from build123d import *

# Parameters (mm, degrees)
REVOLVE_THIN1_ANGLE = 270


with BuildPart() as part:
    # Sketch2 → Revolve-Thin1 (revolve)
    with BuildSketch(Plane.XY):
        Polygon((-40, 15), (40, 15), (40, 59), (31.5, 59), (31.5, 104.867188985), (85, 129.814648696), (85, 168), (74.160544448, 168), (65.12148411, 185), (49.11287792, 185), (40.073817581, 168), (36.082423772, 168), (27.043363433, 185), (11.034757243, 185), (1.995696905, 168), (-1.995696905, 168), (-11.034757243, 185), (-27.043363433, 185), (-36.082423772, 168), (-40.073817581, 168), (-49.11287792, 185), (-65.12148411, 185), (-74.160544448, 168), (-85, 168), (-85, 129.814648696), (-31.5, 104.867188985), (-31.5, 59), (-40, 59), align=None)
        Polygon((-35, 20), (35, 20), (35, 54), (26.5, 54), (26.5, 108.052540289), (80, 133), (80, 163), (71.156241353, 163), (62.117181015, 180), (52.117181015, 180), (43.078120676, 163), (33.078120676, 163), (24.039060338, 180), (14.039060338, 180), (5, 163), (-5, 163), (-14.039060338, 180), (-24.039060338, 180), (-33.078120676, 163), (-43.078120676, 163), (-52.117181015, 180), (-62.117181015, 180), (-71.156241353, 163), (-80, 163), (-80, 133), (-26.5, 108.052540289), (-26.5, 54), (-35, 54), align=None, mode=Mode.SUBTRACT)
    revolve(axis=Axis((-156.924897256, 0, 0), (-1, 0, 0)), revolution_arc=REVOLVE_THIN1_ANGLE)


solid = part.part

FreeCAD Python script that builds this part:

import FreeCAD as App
import Part
import Sketcher
Q = App.Units.Quantity

doc = App.newDocument("Part")
params = doc.addObject("Spreadsheet::Sheet", "Params")
for row, (alias, value) in enumerate([
    ("sketch1_width", "80 mm"),
    ("sketch1_width2", "70 mm"),
    ("sketch1_width3", "10 mm"),
    ("sketch1_height", "44 mm"),
    ("sketch1_height2", "34 mm"),
    ("revolution_angle", "270 deg"),
], start=1):
    params.set(f"A{row}", alias)
    params.set(f"B{row}", "=" + value)
    params.setAlias(f"B{row}", alias)

body = doc.addObject("PartDesign::Body", "Body")

# Sketch on XY plane
sketch1 = body.newObject("Sketcher::SketchObject", "Sketch")
sketch1.AttachmentSupport = (doc.getObject("XY_Plane"), [""])
sketch1.MapMode = "FlatFace"
sketch1.addGeometry([
    Part.LineSegment(App.Vector(-40, 15, 0), App.Vector(40, 15, 0)),  # 0
    Part.LineSegment(App.Vector(40, 15, 0), App.Vector(40, 59, 0)),  # 1
    Part.LineSegment(App.Vector(40, 59, 0), App.Vector(31.5, 59, 0)),  # 2
    Part.LineSegment(App.Vector(31.5, 59, 0), App.Vector(31.5, 104.9, 0)),  # 3
    Part.LineSegment(App.Vector(31.5, 104.9, 0), App.Vector(85, 129.8, 0)),  # 4
    Part.LineSegment(App.Vector(85, 129.8, 0), App.Vector(85, 168, 0)),  # 5
    Part.LineSegment(App.Vector(85, 168, 0), App.Vector(74.2, 168, 0)),  # 6
    Part.LineSegment(App.Vector(74.2, 168, 0), App.Vector(65.1, 185, 0)),  # 7
    Part.LineSegment(App.Vector(65.1, 185, 0), App.Vector(49.1, 185, 0)),  # 8
    Part.LineSegment(App.Vector(49.1, 185, 0), App.Vector(40.1, 168, 0)),  # 9
    Part.LineSegment(App.Vector(40.1, 168, 0), App.Vector(36.1, 168, 0)),  # 10
    Part.LineSegment(App.Vector(36.1, 168, 0), App.Vector(27, 185, 0)),  # 11
    Part.LineSegment(App.Vector(27, 185, 0), App.Vector(11, 185, 0)),  # 12
    Part.LineSegment(App.Vector(11, 185, 0), App.Vector(2, 168, 0)),  # 13
    Part.LineSegment(App.Vector(2, 168, 0), App.Vector(-2, 168, 0)),  # 14
    Part.LineSegment(App.Vector(-2, 168, 0), App.Vector(-11, 185, 0)),  # 15
    Part.LineSegment(App.Vector(-11, 185, 0), App.Vector(-27, 185, 0)),  # 16
    Part.LineSegment(App.Vector(-27, 185, 0), App.Vector(-36.1, 168, 0)),  # 17
    Part.LineSegment(App.Vector(-36.1, 168, 0), App.Vector(-40.1, 168, 0)),  # 18
    Part.LineSegment(App.Vector(-40.1, 168, 0), App.Vector(-49.1, 185, 0)),  # 19
    Part.LineSegment(App.Vector(-49.1, 185, 0), App.Vector(-65.1, 185, 0)),  # 20
    Part.LineSegment(App.Vector(-65.1, 185, 0), App.Vector(-74.2, 168, 0)),  # 21
    Part.LineSegment(App.Vector(-74.2, 168, 0), App.Vector(-85, 168, 0)),  # 22
    Part.LineSegment(App.Vector(-85, 168, 0), App.Vector(-85, 129.8, 0)),  # 23
    Part.LineSegment(App.Vector(-85, 129.8, 0), App.Vector(-31.5, 104.9, 0)),  # 24
    Part.LineSegment(App.Vector(-31.5, 104.9, 0), App.Vector(-31.5, 59, 0)),  # 25
    Part.LineSegment(App.Vector(-31.5, 59, 0), App.Vector(-40, 59, 0)),  # 26
    Part.LineSegment(App.Vector(-40, 59, 0), App.Vector(-40, 15, 0)),  # 27
    Part.LineSegment(App.Vector(35, 20, 0), App.Vector(-35, 20, 0)),  # 28
    Part.LineSegment(App.Vector(-35, 20, 0), App.Vector(-35, 54, 0)),  # 29
    Part.LineSegment(App.Vector(-35, 54, 0), App.Vector(-26.5, 54, 0)),  # 30
    Part.LineSegment(App.Vector(-26.5, 54, 0), App.Vector(-26.5, 108.1, 0)),  # 31
    Part.LineSegment(App.Vector(-26.5, 108.1, 0), App.Vector(-80, 133, 0)),  # 32
    Part.LineSegment(App.Vector(-80, 133, 0), App.Vector(-80, 163, 0)),  # 33
    Part.LineSegment(App.Vector(-80, 163, 0), App.Vector(-71.2, 163, 0)),  # 34
    Part.LineSegment(App.Vector(-71.2, 163, 0), App.Vector(-62.1, 180, 0)),  # 35
    Part.LineSegment(App.Vector(-62.1, 180, 0), App.Vector(-52.1, 180, 0)),  # 36
    Part.LineSegment(App.Vector(-52.1, 180, 0), App.Vector(-43.1, 163, 0)),  # 37
    Part.LineSegment(App.Vector(-43.1, 163, 0), App.Vector(-33.1, 163, 0)),  # 38
    Part.LineSegment(App.Vector(-33.1, 163, 0), App.Vector(-24, 180, 0)),  # 39
    Part.LineSegment(App.Vector(-24, 180, 0), App.Vector(-14, 180, 0)),  # 40
    Part.LineSegment(App.Vector(-14, 180, 0), App.Vector(-5, 163, 0)),  # 41
    Part.LineSegment(App.Vector(-5, 163, 0), App.Vector(5, 163, 0)),  # 42
    Part.LineSegment(App.Vector(5, 163, 0), App.Vector(14, 180, 0)),  # 43
    Part.LineSegment(App.Vector(14, 180, 0), App.Vector(24, 180, 0)),  # 44
    Part.LineSegment(App.Vector(24, 180, 0), App.Vector(33.1, 163, 0)),  # 45
    Part.LineSegment(App.Vector(33.1, 163, 0), App.Vector(43.1, 163, 0)),  # 46
    Part.LineSegment(App.Vector(43.1, 163, 0), App.Vector(52.1, 180, 0)),  # 47
    Part.LineSegment(App.Vector(52.1, 180, 0), App.Vector(62.1, 180, 0)),  # 48
    Part.LineSegment(App.Vector(62.1, 180, 0), App.Vector(71.2, 163, 0)),  # 49
    Part.LineSegment(App.Vector(71.2, 163, 0), App.Vector(80, 163, 0)),  # 50
    Part.LineSegment(App.Vector(80, 163, 0), App.Vector(80, 133, 0)),  # 51
    Part.LineSegment(App.Vector(80, 133, 0), App.Vector(26.5, 108.1, 0)),  # 52
    Part.LineSegment(App.Vector(26.5, 108.1, 0), App.Vector(26.5, 54, 0)),  # 53
    Part.LineSegment(App.Vector(26.5, 54, 0), App.Vector(35, 54, 0)),  # 54
    Part.LineSegment(App.Vector(35, 54, 0), App.Vector(35, 20, 0)),  # 55
], False)
sketch1.addConstraint([
    Sketcher.Constraint("Coincident", 0, 2, 1, 1),
    Sketcher.Constraint("Coincident", 1, 2, 2, 1),
    Sketcher.Constraint("Coincident", 2, 2, 3, 1),
    Sketcher.Constraint("Coincident", 3, 2, 4, 1),
    Sketcher.Constraint("Coincident", 4, 2, 5, 1),
    Sketcher.Constraint("Coincident", 5, 2, 6, 1),
    Sketcher.Constraint("Coincident", 6, 2, 7, 1),
    Sketcher.Constraint("Coincident", 7, 2, 8, 1),
    Sketcher.Constraint("Coincident", 8, 2, 9, 1),
    Sketcher.Constraint("Coincident", 9, 2, 10, 1),
    Sketcher.Constraint("Coincident", 10, 2, 11, 1),
    Sketcher.Constraint("Coincident", 11, 2, 12, 1),
    Sketcher.Constraint("Coincident", 12, 2, 13, 1),
    Sketcher.Constraint("Coincident", 13, 2, 14, 1),
    Sketcher.Constraint("Coincident", 14, 2, 15, 1),
    Sketcher.Constraint("Coincident", 15, 2, 16, 1),
    Sketcher.Constraint("Coincident", 16, 2, 17, 1),
    Sketcher.Constraint("Coincident", 17, 2, 18, 1),
    Sketcher.Constraint("Coincident", 18, 2, 19, 1),
    Sketcher.Constraint("Coincident", 19, 2, 20, 1),
    Sketcher.Constraint("Coincident", 20, 2, 21, 1),
    Sketcher.Constraint("Coincident", 21, 2, 22, 1),
    Sketcher.Constraint("Coincident", 22, 2, 23, 1),
    Sketcher.Constraint("Coincident", 23, 2, 24, 1),
    Sketcher.Constraint("Coincident", 24, 2, 25, 1),
    Sketcher.Constraint("Coincident", 25, 2, 26, 1),
    Sketcher.Constraint("Coincident", 26, 2, 27, 1),
    Sketcher.Constraint("Coincident", 27, 2, 0, 1),
    Sketcher.Constraint("Coincident", 28, 2, 29, 1),
    Sketcher.Constraint("Coincident", 29, 2, 30, 1),
    Sketcher.Constraint("Coincident", 30, 2, 31, 1),
    Sketcher.Constraint("Coincident", 31, 2, 32, 1),
    Sketcher.Constraint("Coincident", 32, 2, 33, 1),
    Sketcher.Constraint("Coincident", 33, 2, 34, 1),
    Sketcher.Constraint("Coincident", 34, 2, 35, 1),
    Sketcher.Constraint("Coincident", 35, 2, 36, 1),
    Sketcher.Constraint("Coincident", 36, 2, 37, 1),
    Sketcher.Constraint("Coincident", 37, 2, 38, 1),
    Sketcher.Constraint("Coincident", 38, 2, 39, 1),
    Sketcher.Constraint("Coincident", 39, 2, 40, 1),
    Sketcher.Constraint("Coincident", 40, 2, 41, 1),
    Sketcher.Constraint("Coincident", 41, 2, 42, 1),
    Sketcher.Constraint("Coincident", 42, 2, 43, 1),
    Sketcher.Constraint("Coincident", 43, 2, 44, 1),
    Sketcher.Constraint("Coincident", 44, 2, 45, 1),
    Sketcher.Constraint("Coincident", 45, 2, 46, 1),
    Sketcher.Constraint("Coincident", 46, 2, 47, 1),
    Sketcher.Constraint("Coincident", 47, 2, 48, 1),
    Sketcher.Constraint("Coincident", 48, 2, 49, 1),
    Sketcher.Constraint("Coincident", 49, 2, 50, 1),
    Sketcher.Constraint("Coincident", 50, 2, 51, 1),
    Sketcher.Constraint("Coincident", 51, 2, 52, 1),
    Sketcher.Constraint("Coincident", 52, 2, 53, 1),
    Sketcher.Constraint("Coincident", 53, 2, 54, 1),
    Sketcher.Constraint("Coincident", 54, 2, 55, 1),
    Sketcher.Constraint("Coincident", 55, 2, 28, 1),
    Sketcher.Constraint("Horizontal", 0),
    Sketcher.Constraint("Vertical", 1),
    Sketcher.Constraint("Horizontal", 2),
    Sketcher.Constraint("Vertical", 3),
    Sketcher.Constraint("Vertical", 5),
    Sketcher.Constraint("Horizontal", 6),
    Sketcher.Constraint("Horizontal", 8),
    Sketcher.Constraint("Horizontal", 10),
    Sketcher.Constraint("Horizontal", 12),
    Sketcher.Constraint("Horizontal", 14),
    Sketcher.Constraint("Horizontal", 16),
    Sketcher.Constraint("Horizontal", 18),
    Sketcher.Constraint("Horizontal", 20),
    Sketcher.Constraint("Horizontal", 22),
    Sketcher.Constraint("Vertical", 23),
    Sketcher.Constraint("Vertical", 25),
    Sketcher.Constraint("Horizontal", 26),
    Sketcher.Constraint("Vertical", 27),
    Sketcher.Constraint("Horizontal", 28),
    Sketcher.Constraint("Vertical", 29),
    Sketcher.Constraint("Horizontal", 30),
    Sketcher.Constraint("Vertical", 31),
    Sketcher.Constraint("Vertical", 33),
    Sketcher.Constraint("Horizontal", 34),
    Sketcher.Constraint("Horizontal", 36),
    Sketcher.Constraint("Horizontal", 38),
    Sketcher.Constraint("Horizontal", 40),
    Sketcher.Constraint("Horizontal", 42),
    Sketcher.Constraint("Horizontal", 44),
    Sketcher.Constraint("Horizontal", 46),
    Sketcher.Constraint("Horizontal", 48),
    Sketcher.Constraint("Horizontal", 50),
    Sketcher.Constraint("Vertical", 51),
    Sketcher.Constraint("Vertical", 53),
    Sketcher.Constraint("Horizontal", 54),
    Sketcher.Constraint("Vertical", 55),
    Sketcher.Constraint("Symmetric", 12, 2, 15, 2, -2),
    Sketcher.Constraint("Symmetric", 10, 2, 17, 2, -2),
    Sketcher.Constraint("Symmetric", 8, 2, 19, 2, -2),
    Sketcher.Constraint("Symmetric", 6, 2, 21, 2, -2),
    Sketcher.Constraint("Symmetric", 4, 2, 23, 2, -2),
    Sketcher.Constraint("Symmetric", 3, 2, 24, 2, -2),
    Sketcher.Constraint("Symmetric", 1, 2, 26, 2, -2),
    Sketcher.Constraint("Symmetric", 40, 2, 43, 2, -2),
    Sketcher.Constraint("Symmetric", 38, 2, 45, 2, -2),
    Sketcher.Constraint("Symmetric", 36, 2, 47, 2, -2),
    Sketcher.Constraint("Symmetric", 34, 2, 49, 2, -2),
    Sketcher.Constraint("Symmetric", 32, 2, 51, 2, -2),
    Sketcher.Constraint("Symmetric", 31, 2, 52, 2, -2),
    Sketcher.Constraint("Symmetric", 29, 2, 54, 2, -2),
    Sketcher.Constraint("Parallel", 7, 11),
    Sketcher.Constraint("Parallel", 9, 13),
    Sketcher.Constraint("Parallel", 11, 15),
    Sketcher.Constraint("Parallel", 13, 17),
    Sketcher.Constraint("Parallel", 15, 19),
    Sketcher.Constraint("Parallel", 17, 21),
    Sketcher.Constraint("Parallel", 24, 32),
    Sketcher.Constraint("Parallel", 21, 35),
    Sketcher.Constraint("Parallel", 19, 37),
    Sketcher.Constraint("Parallel", 35, 39),
    Sketcher.Constraint("Parallel", 37, 41),
    Sketcher.Constraint("Parallel", 39, 43),
    Sketcher.Constraint("Parallel", 41, 45),
    Sketcher.Constraint("Parallel", 43, 47),
    Sketcher.Constraint("Parallel", 45, 49),
    Sketcher.Constraint("Horizontal", 6, 2, 9, 2),
    Sketcher.Constraint("Horizontal", 8, 2, 11, 2),
    Sketcher.Constraint("Horizontal", 10, 2, 13, 2),
    Sketcher.Constraint("Horizontal", 34, 2, 37, 2),
    Sketcher.Constraint("Horizontal", 36, 2, 39, 2),
    Sketcher.Constraint("Horizontal", 38, 2, 41, 2),
    Sketcher.Constraint("Equal", 8, 12),
    Sketcher.Constraint("Equal", 10, 14),
    Sketcher.Constraint("Equal", 12, 16),
    Sketcher.Constraint("Equal", 26, 30),
    Sketcher.Constraint("Equal", 36, 38),
    Sketcher.Constraint("Equal", 38, 40),
    Sketcher.Constraint("Equal", 40, 42),
    Sketcher.Constraint("Equal", 24, 32),
    Sketcher.Constraint("Equal", 21, 35),
    Sketcher.Constraint("DistanceX", 0, 1, 0, 2, 80.0),
    Sketcher.Constraint("DistanceX", 28, 2, 28, 1, 70.0),
    Sketcher.Constraint("DistanceX", 36, 1, 36, 2, 10.0),
    Sketcher.Constraint("DistanceY", 1, 1, 1, 2, 44.0),
    Sketcher.Constraint("DistanceY", 29, 1, 29, 2, 34.0),
    Sketcher.Constraint("DistanceY", 33, 1, 33, 2, 30.0),
    Sketcher.Constraint("Angle", 4, Q("25 deg")),
    Sketcher.Constraint("Angle", 7, Q("118 deg")),
    Sketcher.Constraint("DistanceX", 2, 2, 2, 1, 8.5),
    Sketcher.Constraint("DistanceY", -1, 1, 0, 2, 15.0),
    Sketcher.Constraint("DistanceX", -1, 1, 4, 2, 85.0),
    Sketcher.Constraint("DistanceY", -1, 1, 5, 2, 168.0),
    Sketcher.Constraint("DistanceY", -1, 1, 7, 2, 185.0),
    Sketcher.Constraint("DistanceY", -1, 1, 28, 2, 20.0),
    Sketcher.Constraint("DistanceY", -1, 1, 32, 2, 133.0),
    Sketcher.Constraint("DistanceY", 3, 1, 3, 2, 45.867189),
    Sketcher.Constraint("DistanceX", 6, 2, 6, 1, 10.839456),
    Sketcher.Constraint("DistanceX", 8, 2, 8, 1, 16.008606),
])
sketch1.setExpression("Constraints[136]", "Params.sketch1_width")
sketch1.setExpression("Constraints[137]", "Params.sketch1_width2")
sketch1.setExpression("Constraints[138]", "Params.sketch1_width3")
sketch1.setExpression("Constraints[139]", "Params.sketch1_height")
sketch1.setExpression("Constraints[140]", "Params.sketch1_height2")
revolution = body.newObject("PartDesign::Revolution", "Revolution")
revolution.Profile = sketch1
revolution.ReferenceAxis = (sketch1, ["H_Axis"])
revolution.setExpression("Angle", "Params.revolution_angle")
revolution.Reversed = True

doc.recompute()
